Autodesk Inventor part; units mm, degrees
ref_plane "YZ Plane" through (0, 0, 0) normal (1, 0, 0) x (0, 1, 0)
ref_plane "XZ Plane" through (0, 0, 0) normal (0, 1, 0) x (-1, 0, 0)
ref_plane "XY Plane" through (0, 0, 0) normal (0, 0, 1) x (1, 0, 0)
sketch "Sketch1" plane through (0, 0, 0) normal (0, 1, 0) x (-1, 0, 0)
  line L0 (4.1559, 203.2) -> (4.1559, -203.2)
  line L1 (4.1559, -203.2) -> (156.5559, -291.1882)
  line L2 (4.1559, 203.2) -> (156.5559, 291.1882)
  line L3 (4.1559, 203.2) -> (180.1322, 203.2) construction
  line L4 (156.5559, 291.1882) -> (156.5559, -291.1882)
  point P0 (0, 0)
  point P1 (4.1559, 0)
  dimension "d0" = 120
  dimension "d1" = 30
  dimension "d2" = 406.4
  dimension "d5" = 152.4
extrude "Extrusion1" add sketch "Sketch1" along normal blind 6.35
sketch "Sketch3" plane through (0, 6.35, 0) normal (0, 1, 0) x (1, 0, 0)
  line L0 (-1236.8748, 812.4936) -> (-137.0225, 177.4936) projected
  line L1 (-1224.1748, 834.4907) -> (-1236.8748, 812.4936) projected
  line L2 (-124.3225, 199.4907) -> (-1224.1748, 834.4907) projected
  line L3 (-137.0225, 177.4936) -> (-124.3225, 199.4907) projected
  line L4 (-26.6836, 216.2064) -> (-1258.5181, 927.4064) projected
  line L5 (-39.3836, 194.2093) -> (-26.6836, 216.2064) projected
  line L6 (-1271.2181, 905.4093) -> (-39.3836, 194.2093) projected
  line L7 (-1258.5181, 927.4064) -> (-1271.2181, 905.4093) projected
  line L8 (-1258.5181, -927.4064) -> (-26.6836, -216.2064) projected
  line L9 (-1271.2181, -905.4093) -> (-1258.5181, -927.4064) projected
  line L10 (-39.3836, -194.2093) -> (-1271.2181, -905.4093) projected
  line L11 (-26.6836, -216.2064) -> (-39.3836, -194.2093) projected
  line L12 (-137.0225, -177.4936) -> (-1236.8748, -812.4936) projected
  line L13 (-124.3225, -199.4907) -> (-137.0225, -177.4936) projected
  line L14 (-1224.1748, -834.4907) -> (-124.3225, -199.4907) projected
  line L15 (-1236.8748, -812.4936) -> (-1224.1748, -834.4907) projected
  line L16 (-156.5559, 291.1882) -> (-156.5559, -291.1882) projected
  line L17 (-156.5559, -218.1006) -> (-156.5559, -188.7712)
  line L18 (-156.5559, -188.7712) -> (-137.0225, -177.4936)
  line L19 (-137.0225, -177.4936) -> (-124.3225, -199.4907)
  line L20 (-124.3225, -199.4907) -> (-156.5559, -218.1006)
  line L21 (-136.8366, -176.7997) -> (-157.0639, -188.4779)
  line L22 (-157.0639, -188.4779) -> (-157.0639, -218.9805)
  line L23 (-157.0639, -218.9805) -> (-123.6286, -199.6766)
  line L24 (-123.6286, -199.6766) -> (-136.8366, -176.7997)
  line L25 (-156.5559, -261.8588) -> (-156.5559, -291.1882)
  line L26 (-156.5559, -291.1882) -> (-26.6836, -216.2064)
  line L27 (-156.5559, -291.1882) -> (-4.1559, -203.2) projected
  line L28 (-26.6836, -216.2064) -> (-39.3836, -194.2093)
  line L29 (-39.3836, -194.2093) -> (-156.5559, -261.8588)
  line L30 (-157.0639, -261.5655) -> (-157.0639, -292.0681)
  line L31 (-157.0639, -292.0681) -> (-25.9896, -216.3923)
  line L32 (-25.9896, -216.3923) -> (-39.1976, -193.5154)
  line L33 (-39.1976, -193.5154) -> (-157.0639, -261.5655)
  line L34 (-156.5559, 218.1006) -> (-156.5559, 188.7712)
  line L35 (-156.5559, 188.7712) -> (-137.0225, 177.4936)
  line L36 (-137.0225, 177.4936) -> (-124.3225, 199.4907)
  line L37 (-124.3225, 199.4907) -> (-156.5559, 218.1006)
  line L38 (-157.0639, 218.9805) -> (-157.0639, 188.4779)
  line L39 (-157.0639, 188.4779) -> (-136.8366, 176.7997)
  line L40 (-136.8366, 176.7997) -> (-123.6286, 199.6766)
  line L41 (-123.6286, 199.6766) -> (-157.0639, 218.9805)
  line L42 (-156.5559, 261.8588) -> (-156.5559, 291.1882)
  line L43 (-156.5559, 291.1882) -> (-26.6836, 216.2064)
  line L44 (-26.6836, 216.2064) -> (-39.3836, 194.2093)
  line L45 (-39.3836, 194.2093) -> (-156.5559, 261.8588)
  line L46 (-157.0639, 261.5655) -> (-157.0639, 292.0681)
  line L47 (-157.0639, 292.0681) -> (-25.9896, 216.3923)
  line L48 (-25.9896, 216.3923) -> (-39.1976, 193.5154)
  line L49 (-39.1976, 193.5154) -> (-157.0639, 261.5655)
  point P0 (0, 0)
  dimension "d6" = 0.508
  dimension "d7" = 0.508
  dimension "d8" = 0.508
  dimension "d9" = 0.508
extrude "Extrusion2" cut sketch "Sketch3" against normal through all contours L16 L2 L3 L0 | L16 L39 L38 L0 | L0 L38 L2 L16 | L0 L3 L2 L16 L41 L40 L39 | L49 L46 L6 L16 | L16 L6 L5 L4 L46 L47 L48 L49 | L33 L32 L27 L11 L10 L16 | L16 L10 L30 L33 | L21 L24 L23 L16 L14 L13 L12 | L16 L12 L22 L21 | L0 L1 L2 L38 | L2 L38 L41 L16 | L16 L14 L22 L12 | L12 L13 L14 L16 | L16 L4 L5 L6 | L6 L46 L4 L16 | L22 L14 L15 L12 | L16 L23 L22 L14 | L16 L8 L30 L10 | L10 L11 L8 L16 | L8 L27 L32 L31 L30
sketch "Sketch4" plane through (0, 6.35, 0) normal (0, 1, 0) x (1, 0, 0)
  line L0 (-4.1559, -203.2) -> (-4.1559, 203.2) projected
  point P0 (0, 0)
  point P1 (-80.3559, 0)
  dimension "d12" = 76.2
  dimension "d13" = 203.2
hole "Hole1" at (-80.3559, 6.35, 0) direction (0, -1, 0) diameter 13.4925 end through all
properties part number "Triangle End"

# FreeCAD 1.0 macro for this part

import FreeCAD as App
import Part
import Sketcher
from FreeCAD import Vector
Q = App.Units.Quantity

doc = App.newDocument("Part")
body = doc.addObject("PartDesign::Body", "Body")

# Sketch on XZ plane
sketch1 = body.newObject("Sketcher::SketchObject", "Sketch")
sketch1.AttachmentSupport = (doc.getObject("XZ_Plane"), [""])
sketch1.MapMode = "FlatFace"
sketch1.addGeometry([
    Part.LineSegment(Vector(-157, 291, 0), Vector(-4, 203, 0)),
    Part.LineSegment(Vector(-4, 203, 0), Vector(-4, -203, 0)),
    Part.LineSegment(Vector(-4, -203, 0), Vector(-157, -291, 0)),
    Part.LineSegment(Vector(-157, -291, 0), Vector(-157, 291, 0)),
], False)
sketch1.addConstraint([
    Sketcher.Constraint("Coincident", 0, 2, 1, 1),
    Sketcher.Constraint("Coincident", 1, 2, 2, 1),
    Sketcher.Constraint("Coincident", 2, 2, 3, 1),
    Sketcher.Constraint("Coincident", 3, 2, 0, 1),
    Sketcher.Constraint("Vertical", 1),
    Sketcher.Constraint("Vertical", 3),
    Sketcher.Constraint("Equal", 0, 2),
    Sketcher.Constraint("DistanceY", 1, 2, 1, 1, Q("16 in")),
    Sketcher.Constraint("Angle", 0, Q("-30 deg")),
    Sketcher.Constraint("DistanceX", 2, 2, 1, 2, Q("6 in")),
    Sketcher.Constraint("DistanceY", -1, 1, 0, 2, Q("8 in")),
    Sketcher.Constraint("DistanceX", 0, 2, -1, 1, 4.156),
])
pad1 = body.newObject("PartDesign::Pad", "Pad")
pad1.Profile = sketch1
pad1.Length = Q("0.25 in")
pad1.Reversed = True

# Sketch on XZ plane
sketch2 = body.newObject("Sketcher::SketchObject", "Sketch001")
sketch2.AttachmentSupport = (doc.getObject("XZ_Plane"), [""])
sketch2.MapMode = "FlatFace"
sketch2.AttachmentOffset = App.Placement(Vector(0, 0, -0.25 * 25.4), App.Rotation())
sketch2.addGeometry([
    Part.LineSegment(Vector(-136.8, -176.8, 0), Vector(-123.6, -199.7, 0)),  # 0
    Part.LineSegment(Vector(-123.6, -199.7, 0), Vector(-157.1, -219, 0)),  # 1
    Part.LineSegment(Vector(-157.1, -219, 0), Vector(-157.1, -218.4, 0)),  # 2
    Part.LineSegment(Vector(-157.1, -218.4, 0), Vector(-1224.2, -834.5, 0)),  # 3
    Part.LineSegment(Vector(-1224.2, -834.5, 0), Vector(-1236.9, -812.5, 0)),  # 4
    Part.LineSegment(Vector(-1236.9, -812.5, 0), Vector(-157.1, -189.1, 0)),  # 5
    Part.LineSegment(Vector(-157.1, -189.1, 0), Vector(-157.1, -188.5, 0)),  # 6
    Part.LineSegment(Vector(-157.1, -188.5, 0), Vector(-136.8, -176.8, 0)),  # 7
    Part.LineSegment(Vector(-157.1, -261.6, 0), Vector(-39.2, -193.5, 0)),  # 8
    Part.LineSegment(Vector(-39.2, -193.5, 0), Vector(-26, -216.4, 0)),  # 9
    Part.LineSegment(Vector(-26, -216.4, 0), Vector(-157.1, -292.1, 0)),  # 10
    Part.LineSegment(Vector(-157.1, -292.1, 0), Vector(-157.1, -261.6, 0)),  # 11
    Part.LineSegment(Vector(-39.2, 193.5, 0), Vector(-157.1, 261.6, 0)),  # 12
    Part.LineSegment(Vector(-157.1, 261.6, 0), Vector(-157.1, 292.1, 0)),  # 13
    Part.LineSegment(Vector(-157.1, 292.1, 0), Vector(-26, 216.4, 0)),  # 14
    Part.LineSegment(Vector(-26, 216.4, 0), Vector(-39.2, 193.5, 0)),  # 15
    Part.LineSegment(Vector(-136.8, 176.8, 0), Vector(-157.1, 188.5, 0)),  # 16
    Part.LineSegment(Vector(-157.1, 188.5, 0), Vector(-157.1, 189.1, 0)),  # 17
    Part.LineSegment(Vector(-157.1, 189.1, 0), Vector(-1236.9, 812.5, 0)),  # 18
    Part.LineSegment(Vector(-1236.9, 812.5, 0), Vector(-1224.2, 834.5, 0)),  # 19
    Part.LineSegment(Vector(-1224.2, 834.5, 0), Vector(-157.1, 218.4, 0)),  # 20
    Part.LineSegment(Vector(-157.1, 218.4, 0), Vector(-157.1, 219, 0)),  # 21
    Part.LineSegment(Vector(-157.1, 219, 0), Vector(-123.6, 199.7, 0)),  # 22
    Part.LineSegment(Vector(-123.6, 199.7, 0), Vector(-136.8, 176.8, 0)),  # 23
], False)
sketch2.addConstraint([
    Sketcher.Constraint("Coincident", 0, 2, 1, 1),
    Sketcher.Constraint("Coincident", 1, 2, 2, 1),
    Sketcher.Constraint("Coincident", 2, 2, 3, 1),
    Sketcher.Constraint("Coincident", 3, 2, 4, 1),
    Sketcher.Constraint("Coincident", 4, 2, 5, 1),
    Sketcher.Constraint("Coincident", 5, 2, 6, 1),
    Sketcher.Constraint("Coincident", 6, 2, 7, 1),
    Sketcher.Constraint("Coincident", 7, 2, 0, 1),
    Sketcher.Constraint("Coincident", 8, 2, 9, 1),
    Sketcher.Constraint("Coincident", 9, 2, 10, 1),
    Sketcher.Constraint("Coincident", 10, 2, 11, 1),
    Sketcher.Constraint("Coincident", 11, 2, 8, 1),
    Sketcher.Constraint("Coincident", 12, 2, 13, 1),
    Sketcher.Constraint("Coincident", 13, 2, 14, 1),
    Sketcher.Constraint("Coincident", 14, 2, 15, 1),
    Sketcher.Constraint("Coincident", 15, 2, 12, 1),
    Sketcher.Constraint("Coincident", 16, 2, 17, 1),
    Sketcher.Constraint("Coincident", 17, 2, 18, 1),
    Sketcher.Constraint("Coincident", 18, 2, 19, 1),
    Sketcher.Constraint("Coincident", 19, 2, 20, 1),
    Sketcher.Constraint("Coincident", 20, 2, 21, 1),
    Sketcher.Constraint("Coincident", 21, 2, 22, 1),
    Sketcher.Constraint("Coincident", 22, 2, 23, 1),
    Sketcher.Constraint("Coincident", 23, 2, 16, 1),
    Sketcher.Constraint("Vertical", 2),
    Sketcher.Constraint("Vertical", 6),
    Sketcher.Constraint("Vertical", 11),
    Sketcher.Constraint("Vertical", 13),
    Sketcher.Constraint("Vertical", 17),
    Sketcher.Constraint("Vertical", 21),
    Sketcher.Constraint("Symmetric", 11, 2, 12, 2, -1),
    Sketcher.Constraint("Symmetric", 9, 2, 14, 2, -1),
    Sketcher.Constraint("Symmetric", 8, 2, 15, 2, -1),
    Sketcher.Constraint("Symmetric", 6, 2, 16, 2, -1),
    Sketcher.Constraint("Symmetric", 4, 2, 18, 2, -1),
    Sketcher.Constraint("Symmetric", 3, 2, 19, 2, -1),
    Sketcher.Constraint("Symmetric", 2, 2, 20, 2, -1),
    Sketcher.Constraint("Symmetric", 0, 2, 22, 2, -1),
    Sketcher.Constraint("Symmetric", 7, 2, 23, 2, -1),
    Sketcher.Constraint("Perpendicular", 0, 1),
    Sketcher.Constraint("Parallel", 1, 3),
    Sketcher.Constraint("Perpendicular", 3, 4),
    Sketcher.Constraint("Perpendicular", 4, 5),
    Sketcher.Constraint("Parallel", 5, 7),
    Sketcher.Constraint("Parallel", 7, 8),
    Sketcher.Constraint("Perpendicular", 8, 9),
    Sketcher.Constraint("Perpendicular", 9, 10),
    Sketcher.Constraint("Parallel", 12, 14),
    Sketcher.Constraint("Parallel", 16, 18),
    Sketcher.Constraint("Parallel", 20, 22),
    Sketcher.Constraint("Vertical", 2, 2, 5, 2),
    Sketcher.Constraint("Vertical", 6, 2, 10, 2),
    Sketcher.Constraint("Equal", 2, 6),
    Sketcher.Constraint("Equal", 0, 9),
    Sketcher.Constraint("Distance", 4, Q("1 in")),
    Sketcher.Constraint("Angle", 0, Q("-60 deg")),
    Sketcher.Constraint("Distance", 0, Q("1.04 in")),
    Sketcher.Constraint("Distance", 1, Q("1.52 in")),
    Sketcher.Constraint("DistanceY", 7, 2, 14, 2, Q("15.48 in")),
    Sketcher.Constraint("DistanceY", 16, 2, 14, 2, Q("1.099 in")),
    Sketcher.Constraint("Distance", 5, Q("49.0889 in")),
    Sketcher.Constraint("DistanceX", 5, 2, 8, 2, Q("4.6404 in")),
    Sketcher.Constraint("DistanceX", 0, 2, -1, 1, 123.6286),
])
pocket1 = body.newObject("PartDesign::Pocket", "Pocket")
pocket1.Profile = sketch2
pocket1.Type = "ThroughAll"
pocket1.Reversed = True

# Sketch on XZ plane
sketch3 = body.newObject("Sketcher::SketchObject", "Sketch002")
sketch3.AttachmentSupport = (doc.getObject("XZ_Plane"), [""])
sketch3.MapMode = "FlatFace"
sketch3.AttachmentOffset = App.Placement(Vector(0, 0, -0.25 * 25.4), App.Rotation())
sketch3.addGeometry(Part.Circle(Vector(-80, 0, 0), Vector(0, 0, 1), 7), False)
sketch3.addConstraint([
    Sketcher.Constraint("PointOnObject", 0, 3, -1),
    Sketcher.Constraint("Diameter", 0, Q("0.5312 in")),
    Sketcher.Constraint("DistanceX", 0, 3, -1, 1, 80.356),
])
doc.recompute()
hole = body.newObject("PartDesign::Hole", "Hole")
hole.Profile = sketch3
hole.ThreadType = "None"
hole.Diameter = Q("0.5312008 in")
hole.DepthType = "ThroughAll"
hole.Reversed = True

doc.recompute()
